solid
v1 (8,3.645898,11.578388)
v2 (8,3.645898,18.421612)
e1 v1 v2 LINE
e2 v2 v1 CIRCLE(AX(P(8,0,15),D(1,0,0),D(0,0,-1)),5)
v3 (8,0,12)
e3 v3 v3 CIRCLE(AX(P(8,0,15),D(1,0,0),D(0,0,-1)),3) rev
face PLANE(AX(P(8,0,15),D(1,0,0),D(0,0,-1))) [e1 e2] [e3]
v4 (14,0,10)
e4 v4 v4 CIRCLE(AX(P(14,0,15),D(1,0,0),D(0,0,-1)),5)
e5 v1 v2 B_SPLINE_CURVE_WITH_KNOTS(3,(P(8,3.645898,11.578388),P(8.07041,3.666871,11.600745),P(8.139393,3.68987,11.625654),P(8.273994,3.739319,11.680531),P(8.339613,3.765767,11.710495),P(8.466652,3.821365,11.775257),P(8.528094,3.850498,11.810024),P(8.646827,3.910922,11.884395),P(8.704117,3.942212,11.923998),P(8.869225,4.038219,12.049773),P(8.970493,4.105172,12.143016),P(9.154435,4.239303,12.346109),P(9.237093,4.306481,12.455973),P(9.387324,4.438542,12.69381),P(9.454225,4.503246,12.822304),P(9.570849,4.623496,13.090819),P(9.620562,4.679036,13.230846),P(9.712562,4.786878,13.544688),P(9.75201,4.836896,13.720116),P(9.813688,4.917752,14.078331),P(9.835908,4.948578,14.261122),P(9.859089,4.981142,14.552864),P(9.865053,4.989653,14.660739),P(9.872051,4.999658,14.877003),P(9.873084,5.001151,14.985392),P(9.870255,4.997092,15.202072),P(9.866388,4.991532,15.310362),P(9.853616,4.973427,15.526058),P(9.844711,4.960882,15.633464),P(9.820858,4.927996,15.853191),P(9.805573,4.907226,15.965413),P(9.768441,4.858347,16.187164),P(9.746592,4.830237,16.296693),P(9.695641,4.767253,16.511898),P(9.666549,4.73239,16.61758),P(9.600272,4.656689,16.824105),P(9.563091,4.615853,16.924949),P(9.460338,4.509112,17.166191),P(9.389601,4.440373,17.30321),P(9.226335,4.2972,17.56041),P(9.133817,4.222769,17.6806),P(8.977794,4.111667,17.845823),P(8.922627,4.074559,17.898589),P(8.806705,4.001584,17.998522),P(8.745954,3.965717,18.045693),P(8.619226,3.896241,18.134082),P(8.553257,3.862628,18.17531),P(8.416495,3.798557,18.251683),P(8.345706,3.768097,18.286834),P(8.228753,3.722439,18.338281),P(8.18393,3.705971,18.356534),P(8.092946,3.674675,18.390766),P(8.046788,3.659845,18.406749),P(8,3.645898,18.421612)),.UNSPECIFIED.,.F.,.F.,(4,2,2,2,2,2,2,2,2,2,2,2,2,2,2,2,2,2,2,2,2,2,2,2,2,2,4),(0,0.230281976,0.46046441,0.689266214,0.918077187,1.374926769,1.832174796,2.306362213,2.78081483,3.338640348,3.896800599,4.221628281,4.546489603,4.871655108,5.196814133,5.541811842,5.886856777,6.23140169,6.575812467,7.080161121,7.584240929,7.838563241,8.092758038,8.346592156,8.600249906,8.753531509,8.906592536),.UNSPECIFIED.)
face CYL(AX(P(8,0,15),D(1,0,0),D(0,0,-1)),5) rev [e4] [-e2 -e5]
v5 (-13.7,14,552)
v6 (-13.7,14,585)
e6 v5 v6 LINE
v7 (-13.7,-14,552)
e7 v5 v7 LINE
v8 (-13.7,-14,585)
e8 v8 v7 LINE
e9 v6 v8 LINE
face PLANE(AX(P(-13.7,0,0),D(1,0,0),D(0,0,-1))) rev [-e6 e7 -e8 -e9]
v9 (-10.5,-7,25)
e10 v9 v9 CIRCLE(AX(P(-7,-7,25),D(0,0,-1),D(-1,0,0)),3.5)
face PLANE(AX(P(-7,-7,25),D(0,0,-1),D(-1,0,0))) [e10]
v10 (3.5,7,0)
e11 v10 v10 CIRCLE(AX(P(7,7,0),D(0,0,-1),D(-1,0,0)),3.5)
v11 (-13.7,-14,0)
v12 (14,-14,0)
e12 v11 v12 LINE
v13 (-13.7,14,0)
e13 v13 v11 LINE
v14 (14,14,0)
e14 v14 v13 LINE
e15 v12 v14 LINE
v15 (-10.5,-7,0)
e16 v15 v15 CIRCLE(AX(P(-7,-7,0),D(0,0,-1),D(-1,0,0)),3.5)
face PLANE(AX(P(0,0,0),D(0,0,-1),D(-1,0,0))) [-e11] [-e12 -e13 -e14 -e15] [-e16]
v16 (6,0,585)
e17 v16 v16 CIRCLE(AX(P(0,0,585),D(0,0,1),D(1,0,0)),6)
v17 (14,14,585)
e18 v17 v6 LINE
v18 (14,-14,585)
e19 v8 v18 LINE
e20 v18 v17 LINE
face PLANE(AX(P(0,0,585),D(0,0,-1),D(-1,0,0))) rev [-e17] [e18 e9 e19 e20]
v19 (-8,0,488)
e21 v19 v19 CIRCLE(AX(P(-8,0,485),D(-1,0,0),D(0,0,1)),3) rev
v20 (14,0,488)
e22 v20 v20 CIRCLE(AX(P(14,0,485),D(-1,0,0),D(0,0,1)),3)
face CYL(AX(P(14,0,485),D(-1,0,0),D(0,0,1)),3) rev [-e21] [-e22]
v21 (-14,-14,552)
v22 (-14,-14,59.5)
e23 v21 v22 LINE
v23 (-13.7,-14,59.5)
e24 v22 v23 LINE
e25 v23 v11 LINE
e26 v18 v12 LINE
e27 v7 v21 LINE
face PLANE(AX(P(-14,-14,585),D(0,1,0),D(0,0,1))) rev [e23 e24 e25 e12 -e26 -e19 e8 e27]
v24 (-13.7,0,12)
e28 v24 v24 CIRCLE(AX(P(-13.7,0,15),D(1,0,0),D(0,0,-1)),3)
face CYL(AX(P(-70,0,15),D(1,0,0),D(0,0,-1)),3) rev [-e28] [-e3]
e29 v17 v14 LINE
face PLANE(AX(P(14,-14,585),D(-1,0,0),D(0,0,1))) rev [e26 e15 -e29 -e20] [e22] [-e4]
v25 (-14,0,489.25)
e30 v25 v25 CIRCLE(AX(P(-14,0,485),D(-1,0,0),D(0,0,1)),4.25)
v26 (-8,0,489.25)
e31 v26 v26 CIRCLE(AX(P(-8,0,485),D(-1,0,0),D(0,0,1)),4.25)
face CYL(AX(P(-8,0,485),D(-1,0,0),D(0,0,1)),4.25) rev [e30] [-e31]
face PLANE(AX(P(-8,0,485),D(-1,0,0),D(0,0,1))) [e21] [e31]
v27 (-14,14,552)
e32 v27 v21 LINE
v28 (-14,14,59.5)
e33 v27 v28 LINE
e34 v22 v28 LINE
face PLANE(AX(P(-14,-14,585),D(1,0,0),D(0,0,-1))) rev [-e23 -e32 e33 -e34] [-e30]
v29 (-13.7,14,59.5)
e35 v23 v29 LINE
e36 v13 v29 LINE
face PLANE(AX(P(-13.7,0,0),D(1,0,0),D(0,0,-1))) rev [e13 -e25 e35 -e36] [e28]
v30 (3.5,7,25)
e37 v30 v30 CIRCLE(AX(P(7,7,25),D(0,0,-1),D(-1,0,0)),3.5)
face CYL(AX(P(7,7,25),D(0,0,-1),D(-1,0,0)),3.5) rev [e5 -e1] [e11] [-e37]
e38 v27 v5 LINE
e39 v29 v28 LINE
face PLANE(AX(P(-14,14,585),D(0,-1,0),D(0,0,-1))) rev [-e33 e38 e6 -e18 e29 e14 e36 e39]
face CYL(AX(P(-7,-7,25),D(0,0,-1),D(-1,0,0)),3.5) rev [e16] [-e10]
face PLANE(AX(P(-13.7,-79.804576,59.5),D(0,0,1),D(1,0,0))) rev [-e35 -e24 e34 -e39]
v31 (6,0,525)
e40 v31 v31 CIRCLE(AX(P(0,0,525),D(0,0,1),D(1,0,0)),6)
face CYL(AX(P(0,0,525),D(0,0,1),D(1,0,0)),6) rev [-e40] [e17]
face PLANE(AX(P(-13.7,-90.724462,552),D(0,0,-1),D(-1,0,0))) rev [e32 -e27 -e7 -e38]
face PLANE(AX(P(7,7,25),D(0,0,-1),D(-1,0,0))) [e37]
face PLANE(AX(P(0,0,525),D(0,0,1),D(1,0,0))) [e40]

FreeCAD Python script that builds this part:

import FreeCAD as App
import Part
import Sketcher

doc = App.newDocument("Part")
body = doc.addObject("PartDesign::Body", "Body")

# Sketch on XY plane
sketch1 = body.newObject("Sketcher::SketchObject", "Sketch")
sketch1.AttachmentSupport = (doc.getObject("XY_Plane"), [""])
sketch1.MapMode = "FlatFace"
sketch1.addGeometry(Part.LineSegment(App.Vector(-14, 14, 0), App.Vector(-14, -14, 0)), False)
sketch1.addGeometry(Part.LineSegment(App.Vector(-14, -14, 0), App.Vector(14, -14, 0)), False)
sketch1.addGeometry(Part.LineSegment(App.Vector(14, -14, 0), App.Vector(14, 14, 0)), False)
sketch1.addGeometry(Part.LineSegment(App.Vector(14, 14, 0), App.Vector(-14, 14, 0)), False)
sketch1.addConstraint(Sketcher.Constraint("Coincident", 0, 2, 1, 1))
sketch1.addConstraint(Sketcher.Constraint("Coincident", 1, 2, 2, 1))
sketch1.addConstraint(Sketcher.Constraint("Coincident", 2, 2, 3, 1))
sketch1.addConstraint(Sketcher.Constraint("Coincident", 3, 2, 0, 1))
sketch1.addConstraint(Sketcher.Constraint("Vertical", 0))
sketch1.addConstraint(Sketcher.Constraint("Horizontal", 1))
sketch1.addConstraint(Sketcher.Constraint("Vertical", 2))
sketch1.addConstraint(Sketcher.Constraint("Horizontal", 3))
sketch1.addConstraint(Sketcher.Constraint("Symmetric", 0, 2, 2, 2, -1, 1))
sketch1.addConstraint(Sketcher.Constraint("Equal", 3, 0))
sketch1.addConstraint(Sketcher.Constraint("DistanceX", 1, 1, 1, 2, 28.0))
pad1 = body.newObject("PartDesign::Pad", "Pad")
pad1.Profile = sketch1
pad1.Length = 585

# Sketch on XY plane
sketch2 = body.newObject("Sketcher::SketchObject", "Sketch001")
sketch2.AttachmentSupport = (doc.getObject("XY_Plane"), [""])
sketch2.MapMode = "FlatFace"
sketch2.AttachmentOffset = App.Placement(App.Vector(0, 0, 585), App.Rotation())
sketch2.addGeometry(Part.Circle(App.Vector(0, 0, 0), App.Vector(0, 0, 1), 6), False)
sketch2.addConstraint(Sketcher.Constraint("Coincident", 0, 3, -1, 1))
sketch2.addConstraint(Sketcher.Constraint("Diameter", 0, 12.0))
pocket1 = body.newObject("PartDesign::Pocket", "Pocket")
pocket1.Profile = sketch2
pocket1.Length = 60

# Sketch on XY plane
sketch3 = body.newObject("Sketcher::SketchObject", "Sketch002")
sketch3.AttachmentSupport = (doc.getObject("XY_Plane"), [""])
sketch3.MapMode = "FlatFace"
sketch3.addGeometry(Part.Circle(App.Vector(7, 7, 0), App.Vector(0, 0, 1), 3.5), False)
sketch3.addGeometry(Part.Circle(App.Vector(-7, -7, 0), App.Vector(0, 0, 1), 3.5), False)
sketch3.addConstraint(Sketcher.Constraint("Equal", 0, 1))
sketch3.addConstraint(Sketcher.Constraint("Symmetric", 0, 3, 1, 3, -1, 1))
sketch3.addConstraint(Sketcher.Constraint("Diameter", 0, 7.0))
sketch3.addConstraint(Sketcher.Constraint("DistanceX", -1, 1, 0, 3, 7.0))
sketch3.addConstraint(Sketcher.Constraint("DistanceY", -1, 1, 0, 3, 7.0))
pocket2 = body.newObject("PartDesign::Pocket", "Pocket001")
pocket2.Profile = sketch3
pocket2.Length = 25
pocket2.Reversed = True

# Sketch on YZ plane
sketch4 = body.newObject("Sketcher::SketchObject", "Sketch003")
sketch4.AttachmentSupport = (doc.getObject("YZ_Plane"), [""])
sketch4.MapMode = "FlatFace"
sketch4.AttachmentOffset = App.Placement(App.Vector(0, 0, -14), App.Rotation())
sketch4.addGeometry(Part.Circle(App.Vector(0, 485, 0), App.Vector(0, 0, 1), 3), False)
sketch4.addConstraint(Sketcher.Constraint("PointOnObject", 0, 3, -2))
sketch4.addConstraint(Sketcher.Constraint("Diameter", 0, 6.0))
sketch4.addConstraint(Sketcher.Constraint("DistanceY", -1, 1, 0, 3, 485.0))
pocket3 = body.newObject("PartDesign::Pocket", "Pocket002")
pocket3.Profile = sketch4
pocket3.Type = "ThroughAll"
pocket3.Reversed = True

# Sketch on YZ plane
sketch5 = body.newObject("Sketcher::SketchObject", "Sketch004")
sketch5.AttachmentSupport = (doc.getObject("YZ_Plane"), [""])
sketch5.MapMode = "FlatFace"
sketch5.AttachmentOffset = App.Placement(App.Vector(0, 0, -14), App.Rotation())
sketch5.addGeometry(Part.Circle(App.Vector(0, 485, 0), App.Vector(0, 0, 1), 4.2), False)
sketch5.addConstraint(Sketcher.Constraint("PointOnObject", 0, 3, -2))
sketch5.addConstraint(Sketcher.Constraint("Diameter", 0, 8.5))
sketch5.addConstraint(Sketcher.Constraint("DistanceY", -1, 1, 0, 3, 485.0))
pocket4 = body.newObject("PartDesign::Pocket", "Pocket003")
pocket4.Profile = sketch5
pocket4.Length = 6
pocket4.Reversed = True

# Sketch on YZ plane
sketch6 = body.newObject("Sketcher::SketchObject", "Sketch005")
sketch6.AttachmentSupport = (doc.getObject("YZ_Plane"), [""])
sketch6.MapMode = "FlatFace"
sketch6.AttachmentOffset = App.Placement(App.Vector(0, 0, -14), App.Rotation())
sketch6.addGeometry(Part.LineSegment(App.Vector(128, 552, 0), App.Vector(-91, 552, 0)), False)
sketch6.addGeometry(Part.LineSegment(App.Vector(-91, 552, 0), App.Vector(-91, 621, 0)), False)
sketch6.addGeometry(Part.LineSegment(App.Vector(-91, 621, 0), App.Vector(128, 621, 0)), False)
sketch6.addGeometry(Part.LineSegment(App.Vector(128, 621, 0), App.Vector(128, 552, 0)), False)
sketch6.addGeometry(Part.LineSegment(App.Vector(95, -9, 0), App.Vector(-80, -9, 0)), False)
sketch6.addGeometry(Part.LineSegment(App.Vector(-80, -9, 0), App.Vector(-80, 60, 0)), False)
sketch6.addGeometry(Part.LineSegment(App.Vector(-80, 60, 0), App.Vector(95, 60, 0)), False)
sketch6.addGeometry(Part.LineSegment(App.Vector(95, 60, 0), App.Vector(95, -9, 0)), False)
sketch6.addConstraint(Sketcher.Constraint("Coincident", 0, 2, 1, 1))
sketch6.addConstraint(Sketcher.Constraint("Coincident", 1, 2, 2, 1))
sketch6.addConstraint(Sketcher.Constraint("Coincident", 2, 2, 3, 1))
sketch6.addConstraint(Sketcher.Constraint("Coincident", 3, 2, 0, 1))
sketch6.addConstraint(Sketcher.Constraint("Coincident", 4, 2, 5, 1))
sketch6.addConstraint(Sketcher.Constraint("Coincident", 5, 2, 6, 1))
sketch6.addConstraint(Sketcher.Constraint("Coincident", 6, 2, 7, 1))
sketch6.addConstraint(Sketcher.Constraint("Coincident", 7, 2, 4, 1))
sketch6.addConstraint(Sketcher.Constraint("Horizontal", 0))
sketch6.addConstraint(Sketcher.Constraint("Vertical", 1))
sketch6.addConstraint(Sketcher.Constraint("Horizontal", 2))
sketch6.addConstraint(Sketcher.Constraint("Vertical", 3))
sketch6.addConstraint(Sketcher.Constraint("Horizontal", 4))
sketch6.addConstraint(Sketcher.Constraint("Vertical", 5))
sketch6.addConstraint(Sketcher.Constraint("Horizontal", 6))
sketch6.addConstraint(Sketcher.Constraint("Vertical", 7))
sketch6.addConstraint(Sketcher.Constraint("DistanceY", -1, 1, 0, 2, 552.0))
sketch6.addConstraint(Sketcher.Constraint("DistanceY", -1, 1, 5, 2, 59.5))
sketch6.addConstraint(Sketcher.Constraint("DistanceY", 5, 1, 5, 2, 68.987869))
sketch6.addConstraint(Sketcher.Constraint("DistanceX", 0, 2, 0, 1, 219.206638))
sketch6.addConstraint(Sketcher.Constraint("DistanceX", 4, 2, 4, 1, 174.940465))
sketch6.addConstraint(Sketcher.Constraint("DistanceY", 1, 1, 1, 2, 68.791406))
sketch6.addConstraint(Sketcher.Constraint("DistanceX", 0, 2, -1, 1, 90.724462))
sketch6.addConstraint(Sketcher.Constraint("DistanceX", -1, 1, 6, 2, 95.135889))
pocket5 = body.newObject("PartDesign::Pocket", "Pocket004")
pocket5.Profile = sketch6
pocket5.Length = 0.3
pocket5.Reversed = True

# Sketch on YZ plane
sketch7 = body.newObject("Sketcher::SketchObject", "Sketch006")
sketch7.AttachmentSupport = (doc.getObject("YZ_Plane"), [""])
sketch7.MapMode = "FlatFace"
sketch7.AttachmentOffset = App.Placement(App.Vector(0, 0, 14), App.Rotation())
sketch7.addGeometry(Part.Circle(App.Vector(0, 15, 0), App.Vector(0, 0, 1), 3), False)
sketch7.addConstraint(Sketcher.Constraint("PointOnObject", 0, 3, -2))
sketch7.addConstraint(Sketcher.Constraint("Diameter", 0, 6.0))
sketch7.addConstraint(Sketcher.Constraint("DistanceY", -1, 1, 0, 3, 15.0))
pocket6 = body.newObject("PartDesign::Pocket", "Pocket005")
pocket6.Profile = sketch7
pocket6.Length = 84

# Sketch on YZ plane
sketch8 = body.newObject("Sketcher::SketchObject", "Sketch007")
sketch8.AttachmentSupport = (doc.getObject("YZ_Plane"), [""])
sketch8.MapMode = "FlatFace"
sketch8.AttachmentOffset = App.Placement(App.Vector(0, 0, 14), App.Rotation())
sketch8.addGeometry(Part.Circle(App.Vector(0, 15, 0), App.Vector(0, 0, 1), 5), False)
sketch8.addConstraint(Sketcher.Constraint("PointOnObject", 0, 3, -2))
sketch8.addConstraint(Sketcher.Constraint("Diameter", 0, 10.0))
sketch8.addConstraint(Sketcher.Constraint("DistanceY", -1, 1, 0, 3, 15.0))
pocket7 = body.newObject("PartDesign::Pocket", "Pocket006")
pocket7.Profile = sketch8
pocket7.Length = 6

doc.recompute()
